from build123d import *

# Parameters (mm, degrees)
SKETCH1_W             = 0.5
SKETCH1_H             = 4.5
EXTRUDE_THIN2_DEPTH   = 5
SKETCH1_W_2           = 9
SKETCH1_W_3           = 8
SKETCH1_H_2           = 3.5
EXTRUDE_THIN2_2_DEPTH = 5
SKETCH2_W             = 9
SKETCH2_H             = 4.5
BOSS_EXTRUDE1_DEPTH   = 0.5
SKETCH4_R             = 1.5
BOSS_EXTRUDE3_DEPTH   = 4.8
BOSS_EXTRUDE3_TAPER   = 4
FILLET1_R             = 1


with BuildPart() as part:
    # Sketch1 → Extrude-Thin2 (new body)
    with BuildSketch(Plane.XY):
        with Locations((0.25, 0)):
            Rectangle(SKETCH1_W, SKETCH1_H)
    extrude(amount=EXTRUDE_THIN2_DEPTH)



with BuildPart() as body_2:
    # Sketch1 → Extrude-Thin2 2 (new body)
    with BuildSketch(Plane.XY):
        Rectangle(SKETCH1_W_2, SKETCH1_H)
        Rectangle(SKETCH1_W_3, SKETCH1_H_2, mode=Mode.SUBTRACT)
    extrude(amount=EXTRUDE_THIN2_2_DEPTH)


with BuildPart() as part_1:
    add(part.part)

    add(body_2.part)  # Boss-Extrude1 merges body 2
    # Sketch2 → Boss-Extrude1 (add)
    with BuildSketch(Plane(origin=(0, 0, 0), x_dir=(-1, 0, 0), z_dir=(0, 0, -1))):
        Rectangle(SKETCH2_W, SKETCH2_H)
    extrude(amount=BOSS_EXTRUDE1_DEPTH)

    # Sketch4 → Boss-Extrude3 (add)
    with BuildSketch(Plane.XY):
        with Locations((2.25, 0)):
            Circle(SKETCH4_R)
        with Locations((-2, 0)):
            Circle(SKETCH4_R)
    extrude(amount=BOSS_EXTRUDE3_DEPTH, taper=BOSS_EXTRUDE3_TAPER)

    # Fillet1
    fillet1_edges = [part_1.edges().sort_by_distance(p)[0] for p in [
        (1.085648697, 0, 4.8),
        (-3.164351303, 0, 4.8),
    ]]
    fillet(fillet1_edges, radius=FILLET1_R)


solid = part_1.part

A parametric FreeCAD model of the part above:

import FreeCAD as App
import Part
import Sketcher

V = App.Vector
Q = App.Units.Quantity


def edges_at(feature, points):
    """Names of the edges that pass closest to the given points."""
    edges = feature.Shape.Edges
    near = lambda p: min(range(len(edges)), key=lambda i: edges[i].distToShape(Part.Vertex(*p))[0])
    return sorted({f"Edge{near(p) + 1}" for p in points})


def add_polygon(sketch, points):
    """Adds a closed chain of lines whose ends are joined by coincident constraints."""
    first, n = sketch.GeometryCount, len(points)
    for a, b in zip(points, points[1:] + points[:1]):
        sketch.addGeometry(Part.LineSegment(App.Vector(*a, 0), App.Vector(*b, 0)), False)
    for i in range(n):
        sketch.addConstraint(Sketcher.Constraint("Coincident", first + i, 2, first + (i + 1) % n, 1))

doc = App.newDocument("Part")
body = doc.addObject("PartDesign::Body", "Body")

# Sketch on XY plane
sketch1 = body.newObject("Sketcher::SketchObject", "Sketch")
sketch1.AttachmentSupport = (doc.getObject("XY_Plane"), [""])
sketch1.MapMode = "FlatFace"
add_polygon(sketch1, [(0, 2.25), (0, -2.25), (0.5, -2.25), (0.5, 2.25)])  # lines 0-3
sketch1.addConstraint(Sketcher.Constraint("Vertical", 0))
sketch1.addConstraint(Sketcher.Constraint("Horizontal", 1))
sketch1.addConstraint(Sketcher.Constraint("Vertical", 2))
sketch1.addConstraint(Sketcher.Constraint("Horizontal", 3))
sketch1.addConstraint(Sketcher.Constraint("Symmetric", 0, 2, 3, 2, -1, 1))
sketch1.addConstraint(Sketcher.Constraint("DistanceX", 1, 1, 1, 2, Q("0.5 mm")))
sketch1.addConstraint(Sketcher.Constraint("DistanceY", 0, 2, 0, 1, Q("4.5 mm")))
pad1 = body.newObject("PartDesign::Pad", "Pad")
pad1.Profile = sketch1
pad1.Length = 5
body2 = doc.addObject("PartDesign::Body", "Body001")

# Sketch on XY plane
sketch2 = body2.newObject("Sketcher::SketchObject", "Sketch001")
sketch2.AttachmentSupport = (doc.getObject("XY_Plane001"), [""])
sketch2.MapMode = "FlatFace"
add_polygon(sketch2, [(-4.5, 2.25), (-4.5, -2.25), (4.5, -2.25), (4.5, 2.25)])  # lines 0-3
add_polygon(sketch2, [(4, -1.75), (-4, -1.75), (-4, 1.75), (4, 1.75)])  # lines 4-7
sketch2.addConstraint(Sketcher.Constraint("Vertical", 0))
sketch2.addConstraint(Sketcher.Constraint("Horizontal", 1))
sketch2.addConstraint(Sketcher.Constraint("Vertical", 2))
sketch2.addConstraint(Sketcher.Constraint("Horizontal", 3))
sketch2.addConstraint(Sketcher.Constraint("Horizontal", 4))
sketch2.addConstraint(Sketcher.Constraint("Vertical", 5))
sketch2.addConstraint(Sketcher.Constraint("Horizontal", 6))
sketch2.addConstraint(Sketcher.Constraint("Vertical", 7))
sketch2.addConstraint(Sketcher.Constraint("Symmetric", 0, 2, 2, 2, -1, 1))
sketch2.addConstraint(Sketcher.Constraint("Symmetric", 4, 2, 6, 2, -1, 1))
sketch2.addConstraint(Sketcher.Constraint("DistanceX", 1, 1, 1, 2, Q("9 mm")))
sketch2.addConstraint(Sketcher.Constraint("DistanceX", 4, 2, 4, 1, Q("8 mm")))
sketch2.addConstraint(Sketcher.Constraint("DistanceY", 0, 2, 0, 1, Q("4.5 mm")))
sketch2.addConstraint(Sketcher.Constraint("DistanceY", 5, 1, 5, 2, Q("3.5 mm")))
pad2 = body2.newObject("PartDesign::Pad", "Pad001")
pad2.Profile = sketch2
pad2.Length = 5
doc.recompute()

boolean = body.newObject("PartDesign::Boolean", "Boolean")
boolean.Type = "Fuse"
boolean.addObjects([body2])

# Sketch on XY plane
sketch3 = body.newObject("Sketcher::SketchObject", "Sketch002")
sketch3.AttachmentSupport = (doc.getObject("XY_Plane"), [""])
sketch3.MapMode = "FlatFace"
add_polygon(sketch3, [(4.5, 2.25), (4.5, -2.25), (-4.5, -2.25), (-4.5, 2.25)])  # lines 0-3
sketch3.addConstraint(Sketcher.Constraint("Vertical", 0))
sketch3.addConstraint(Sketcher.Constraint("Horizontal", 1))
sketch3.addConstraint(Sketcher.Constraint("Vertical", 2))
sketch3.addConstraint(Sketcher.Constraint("Horizontal", 3))
sketch3.addConstraint(Sketcher.Constraint("Symmetric", 0, 2, 2, 2, -1, 1))
sketch3.addConstraint(Sketcher.Constraint("DistanceX", 1, 2, 1, 1, Q("9 mm")))
sketch3.addConstraint(Sketcher.Constraint("DistanceY", 0, 2, 0, 1, Q("4.5 mm")))
pad3 = body.newObject("PartDesign::Pad", "Pad002")
pad3.Profile = sketch3
pad3.Length = 0.5
pad3.Reversed = True

# Sketch on XY plane
sketch4 = body.newObject("Sketcher::SketchObject", "Sketch003")
sketch4.AttachmentSupport = (doc.getObject("XY_Plane"), [""])
sketch4.MapMode = "FlatFace"
sketch4.addGeometry(Part.Circle(V(2.25, 0, 0), V(0, 0, 1), 1.5), False)
sketch4.addGeometry(Part.Circle(V(-2, 0, 0), V(0, 0, 1), 1.5), False)
sketch4.addConstraint(Sketcher.Constraint("Equal", 0, 1))
sketch4.addConstraint(Sketcher.Constraint("PointOnObject", 0, 3, -1))
sketch4.addConstraint(Sketcher.Constraint("PointOnObject", 1, 3, -1))
sketch4.addConstraint(Sketcher.Constraint("Diameter", 0, Q("3 mm")))
sketch4.addConstraint(Sketcher.Constraint("DistanceX", 1, 3, -1, 1, Q("2 mm")))
sketch4.addConstraint(Sketcher.Constraint("DistanceX", -1, 1, 0, 3, Q("2.25 mm")))
pad4 = body.newObject("PartDesign::Pad", "Pad003")
pad4.Profile = sketch4
pad4.Length = 4.8
pad4.TaperAngle = -4
doc.recompute()

fillet = body.newObject("PartDesign::Fillet", "Fillet")
fillet.Base = (pad4, edges_at(pad4, [(1.086, 0, 4.8), (-3.164, 0, 4.8)]))
fillet.Radius = 1

doc.recompute()
